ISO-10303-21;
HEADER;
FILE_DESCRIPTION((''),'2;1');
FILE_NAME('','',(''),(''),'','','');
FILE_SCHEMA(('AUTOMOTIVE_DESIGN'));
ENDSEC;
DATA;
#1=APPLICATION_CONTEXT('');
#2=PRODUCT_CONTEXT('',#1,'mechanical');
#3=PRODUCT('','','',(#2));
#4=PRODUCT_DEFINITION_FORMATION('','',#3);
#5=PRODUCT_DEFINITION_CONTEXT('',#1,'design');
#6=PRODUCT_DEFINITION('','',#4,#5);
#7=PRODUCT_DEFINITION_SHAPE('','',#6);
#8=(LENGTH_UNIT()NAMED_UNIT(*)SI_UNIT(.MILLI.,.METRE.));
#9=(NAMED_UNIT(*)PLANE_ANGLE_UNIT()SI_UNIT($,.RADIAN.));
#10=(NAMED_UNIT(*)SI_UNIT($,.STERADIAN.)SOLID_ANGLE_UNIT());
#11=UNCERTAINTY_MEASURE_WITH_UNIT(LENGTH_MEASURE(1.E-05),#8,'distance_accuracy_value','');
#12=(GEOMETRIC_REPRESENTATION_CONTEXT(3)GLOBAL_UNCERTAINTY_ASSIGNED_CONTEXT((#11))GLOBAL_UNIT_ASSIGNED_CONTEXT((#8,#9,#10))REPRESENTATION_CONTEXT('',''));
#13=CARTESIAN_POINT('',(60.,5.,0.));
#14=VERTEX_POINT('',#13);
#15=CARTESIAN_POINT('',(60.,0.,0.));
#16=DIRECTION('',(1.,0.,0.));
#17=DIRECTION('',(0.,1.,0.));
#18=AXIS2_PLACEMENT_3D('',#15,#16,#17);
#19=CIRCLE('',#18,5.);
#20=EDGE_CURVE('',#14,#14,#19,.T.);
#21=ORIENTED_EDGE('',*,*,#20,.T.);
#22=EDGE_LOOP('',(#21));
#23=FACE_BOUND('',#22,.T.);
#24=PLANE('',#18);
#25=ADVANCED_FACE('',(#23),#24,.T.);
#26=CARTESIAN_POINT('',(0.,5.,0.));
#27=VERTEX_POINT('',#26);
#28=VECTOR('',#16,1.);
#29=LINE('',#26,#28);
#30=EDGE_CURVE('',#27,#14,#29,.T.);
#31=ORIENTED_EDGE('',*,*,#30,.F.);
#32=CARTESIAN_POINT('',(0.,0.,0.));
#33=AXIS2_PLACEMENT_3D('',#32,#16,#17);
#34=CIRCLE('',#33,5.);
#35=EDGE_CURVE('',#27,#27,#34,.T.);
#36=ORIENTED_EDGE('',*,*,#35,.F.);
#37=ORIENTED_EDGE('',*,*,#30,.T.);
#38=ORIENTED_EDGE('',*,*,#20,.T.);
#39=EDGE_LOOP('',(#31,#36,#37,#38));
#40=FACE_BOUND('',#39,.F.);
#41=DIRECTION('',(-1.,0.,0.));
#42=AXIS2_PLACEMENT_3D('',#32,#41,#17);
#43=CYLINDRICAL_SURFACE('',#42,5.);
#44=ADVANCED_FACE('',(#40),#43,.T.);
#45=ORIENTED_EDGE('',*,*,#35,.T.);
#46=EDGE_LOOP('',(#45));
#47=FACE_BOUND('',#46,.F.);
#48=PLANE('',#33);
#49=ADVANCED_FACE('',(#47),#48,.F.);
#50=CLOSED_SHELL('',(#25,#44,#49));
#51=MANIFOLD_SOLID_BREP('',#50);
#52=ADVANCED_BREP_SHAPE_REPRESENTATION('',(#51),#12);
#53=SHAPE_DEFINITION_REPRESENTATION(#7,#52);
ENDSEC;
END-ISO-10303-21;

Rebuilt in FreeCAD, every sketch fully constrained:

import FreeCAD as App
import Part
import Sketcher

V = App.Vector

doc = App.newDocument("Part")
body = doc.addObject("PartDesign::Body", "Body")

# Sketch on YZ plane
sketch1 = body.newObject("Sketcher::SketchObject", "Sketch")
sketch1.AttachmentSupport = (doc.getObject("YZ_Plane"), [""])
sketch1.MapMode = "FlatFace"
sketch1.addGeometry(Part.Circle(V(0, 0, 0), V(0, 0, 1), 5), False)
sketch1.addConstraint(Sketcher.Constraint("Coincident", 0, 3, -1, 1))
sketch1.addConstraint(Sketcher.Constraint("Diameter", 0, 10.0))
pad1 = body.newObject("PartDesign::Pad", "Pad")
pad1.Profile = sketch1
pad1.Length = 60

doc.recompute()
